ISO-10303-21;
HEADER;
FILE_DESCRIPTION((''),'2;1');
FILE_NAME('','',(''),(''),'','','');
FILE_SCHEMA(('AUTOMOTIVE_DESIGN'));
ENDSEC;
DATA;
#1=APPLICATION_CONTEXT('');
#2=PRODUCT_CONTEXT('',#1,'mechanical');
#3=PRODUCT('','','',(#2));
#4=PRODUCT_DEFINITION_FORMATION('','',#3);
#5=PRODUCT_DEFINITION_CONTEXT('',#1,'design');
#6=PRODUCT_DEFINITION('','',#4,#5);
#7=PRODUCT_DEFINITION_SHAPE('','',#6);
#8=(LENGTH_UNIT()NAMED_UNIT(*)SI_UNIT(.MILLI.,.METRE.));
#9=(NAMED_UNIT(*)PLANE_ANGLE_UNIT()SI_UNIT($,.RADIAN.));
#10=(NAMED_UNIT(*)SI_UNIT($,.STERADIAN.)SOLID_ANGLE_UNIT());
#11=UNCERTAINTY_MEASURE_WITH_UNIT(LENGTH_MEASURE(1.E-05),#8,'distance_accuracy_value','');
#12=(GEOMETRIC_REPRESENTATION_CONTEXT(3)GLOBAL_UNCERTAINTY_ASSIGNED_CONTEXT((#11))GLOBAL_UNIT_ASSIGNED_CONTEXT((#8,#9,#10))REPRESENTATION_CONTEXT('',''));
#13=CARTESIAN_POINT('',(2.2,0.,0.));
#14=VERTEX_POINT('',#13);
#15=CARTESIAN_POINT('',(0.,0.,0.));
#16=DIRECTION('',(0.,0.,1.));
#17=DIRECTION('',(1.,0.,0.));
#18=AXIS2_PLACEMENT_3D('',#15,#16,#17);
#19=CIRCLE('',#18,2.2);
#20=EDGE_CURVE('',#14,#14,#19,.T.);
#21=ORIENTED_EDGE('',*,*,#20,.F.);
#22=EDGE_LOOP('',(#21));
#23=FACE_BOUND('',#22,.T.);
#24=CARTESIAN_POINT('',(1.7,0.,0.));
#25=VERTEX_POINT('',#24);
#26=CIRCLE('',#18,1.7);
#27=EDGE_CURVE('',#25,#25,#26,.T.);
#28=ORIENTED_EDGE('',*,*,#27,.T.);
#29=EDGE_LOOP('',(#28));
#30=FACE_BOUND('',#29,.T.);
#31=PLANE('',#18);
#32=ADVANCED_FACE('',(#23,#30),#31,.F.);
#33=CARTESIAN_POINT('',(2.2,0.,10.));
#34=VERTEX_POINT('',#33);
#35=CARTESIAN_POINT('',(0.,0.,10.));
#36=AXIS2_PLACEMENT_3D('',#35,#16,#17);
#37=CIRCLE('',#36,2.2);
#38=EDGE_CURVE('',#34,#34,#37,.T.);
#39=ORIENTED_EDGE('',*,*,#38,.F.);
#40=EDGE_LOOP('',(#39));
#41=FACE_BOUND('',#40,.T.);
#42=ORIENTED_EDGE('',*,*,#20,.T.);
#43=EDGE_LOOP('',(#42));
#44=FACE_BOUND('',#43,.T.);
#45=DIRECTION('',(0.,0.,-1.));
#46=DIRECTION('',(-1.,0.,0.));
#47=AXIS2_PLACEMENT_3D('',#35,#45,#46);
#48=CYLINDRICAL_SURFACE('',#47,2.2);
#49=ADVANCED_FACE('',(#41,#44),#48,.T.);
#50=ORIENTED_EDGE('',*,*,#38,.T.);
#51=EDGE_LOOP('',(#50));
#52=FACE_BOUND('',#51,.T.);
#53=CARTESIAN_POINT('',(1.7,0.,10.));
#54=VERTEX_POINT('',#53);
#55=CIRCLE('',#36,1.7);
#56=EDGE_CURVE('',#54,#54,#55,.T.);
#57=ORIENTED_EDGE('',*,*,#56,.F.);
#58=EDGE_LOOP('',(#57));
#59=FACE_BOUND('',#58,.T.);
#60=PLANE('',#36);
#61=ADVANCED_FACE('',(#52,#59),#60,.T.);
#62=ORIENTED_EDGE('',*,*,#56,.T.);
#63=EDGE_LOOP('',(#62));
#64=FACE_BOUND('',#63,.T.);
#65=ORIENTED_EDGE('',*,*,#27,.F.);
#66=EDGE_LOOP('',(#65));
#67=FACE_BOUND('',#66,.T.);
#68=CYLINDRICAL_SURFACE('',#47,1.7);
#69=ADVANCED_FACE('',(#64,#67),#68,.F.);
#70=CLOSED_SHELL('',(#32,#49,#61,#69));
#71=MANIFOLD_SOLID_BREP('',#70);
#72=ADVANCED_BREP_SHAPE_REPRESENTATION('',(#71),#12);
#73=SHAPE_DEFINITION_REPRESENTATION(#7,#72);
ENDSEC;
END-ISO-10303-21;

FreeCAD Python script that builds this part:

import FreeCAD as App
import Part
import Sketcher

doc = App.newDocument("Part")
body = doc.addObject("PartDesign::Body", "Body")

# Sketch on XY plane
sketch1 = body.newObject("Sketcher::SketchObject", "Sketch")
sketch1.AttachmentSupport = (doc.getObject("XY_Plane"), [""])
sketch1.MapMode = "FlatFace"
sketch1.addGeometry([
    Part.Circle(App.Vector(0, 0, 0), App.Vector(0, 0, 1), 2.2),
    Part.Circle(App.Vector(0, 0, 0), App.Vector(0, 0, 1), 1.7),
], False)
sketch1.addConstraint([
    Sketcher.Constraint("Coincident", 0, 3, -1, 1),
    Sketcher.Constraint("Coincident", 1, 3, -1, 1),
    Sketcher.Constraint("Diameter", 0, 4.4),
    Sketcher.Constraint("Diameter", 1, 3.4),
])
pad1 = body.newObject("PartDesign::Pad", "Pad")
pad1.Profile = sketch1
pad1.Length = 10

doc.recompute()
